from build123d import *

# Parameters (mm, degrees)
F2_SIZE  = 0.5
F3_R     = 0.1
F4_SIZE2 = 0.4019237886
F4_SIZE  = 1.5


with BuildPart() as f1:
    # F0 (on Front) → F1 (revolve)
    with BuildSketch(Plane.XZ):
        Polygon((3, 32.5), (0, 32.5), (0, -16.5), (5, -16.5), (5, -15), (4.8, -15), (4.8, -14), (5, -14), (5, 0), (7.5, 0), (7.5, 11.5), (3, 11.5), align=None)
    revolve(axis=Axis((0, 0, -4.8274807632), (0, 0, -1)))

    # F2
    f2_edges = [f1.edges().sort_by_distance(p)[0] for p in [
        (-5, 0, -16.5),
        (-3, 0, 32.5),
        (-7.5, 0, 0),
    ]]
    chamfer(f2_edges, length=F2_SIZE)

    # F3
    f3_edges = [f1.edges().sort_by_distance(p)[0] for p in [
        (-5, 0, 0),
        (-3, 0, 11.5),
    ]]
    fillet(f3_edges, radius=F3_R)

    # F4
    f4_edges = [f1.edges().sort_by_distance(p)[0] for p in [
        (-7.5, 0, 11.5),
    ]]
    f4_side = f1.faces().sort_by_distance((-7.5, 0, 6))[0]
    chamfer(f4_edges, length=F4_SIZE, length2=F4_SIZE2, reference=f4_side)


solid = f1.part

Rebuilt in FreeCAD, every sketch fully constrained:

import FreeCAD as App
import Part
import Sketcher
Q = App.Units.Quantity


def edges_at(feature, points):
    """Names of the edges that pass closest to the given points."""
    edges = feature.Shape.Edges
    near = lambda p: min(range(len(edges)), key=lambda i: edges[i].distToShape(Part.Vertex(*p))[0])
    return sorted({f"Edge{near(p) + 1}" for p in points})

doc = App.newDocument("Part")
body = doc.addObject("PartDesign::Body", "Body")

# Sketch on XZ plane
sketch1 = body.newObject("Sketcher::SketchObject", "Sketch")
sketch1.AttachmentSupport = (doc.getObject("XZ_Plane"), [""])
sketch1.MapMode = "FlatFace"
sketch1.addGeometry(Part.LineSegment(App.Vector(3, 32.5, 0), App.Vector(0, 32.5, 0)), False)
sketch1.addGeometry(Part.LineSegment(App.Vector(0, 32.5, 0), App.Vector(0, -16.5, 0)), False)
sketch1.addGeometry(Part.LineSegment(App.Vector(0, -16.5, 0), App.Vector(5, -16.5, 0)), False)
sketch1.addGeometry(Part.LineSegment(App.Vector(5, -16.5, 0), App.Vector(5, -15, 0)), False)
sketch1.addGeometry(Part.LineSegment(App.Vector(5, -15, 0), App.Vector(4.8, -15, 0)), False)
sketch1.addGeometry(Part.LineSegment(App.Vector(4.8, -15, 0), App.Vector(4.8, -14, 0)), False)
sketch1.addGeometry(Part.LineSegment(App.Vector(4.8, -14, 0), App.Vector(5, -14, 0)), False)
sketch1.addGeometry(Part.LineSegment(App.Vector(5, -14, 0), App.Vector(5, 0, 0)), False)
sketch1.addGeometry(Part.LineSegment(App.Vector(5, 0, 0), App.Vector(7.5, 0, 0)), False)
sketch1.addGeometry(Part.LineSegment(App.Vector(7.5, 0, 0), App.Vector(7.5, 11.5, 0)), False)
sketch1.addGeometry(Part.LineSegment(App.Vector(7.5, 11.5, 0), App.Vector(3, 11.5, 0)), False)
sketch1.addGeometry(Part.LineSegment(App.Vector(3, 11.5, 0), App.Vector(3, 32.5, 0)), False)
sketch1.addConstraint(Sketcher.Constraint("Coincident", 0, 2, 1, 1))
sketch1.addConstraint(Sketcher.Constraint("Coincident", 1, 2, 2, 1))
sketch1.addConstraint(Sketcher.Constraint("Coincident", 2, 2, 3, 1))
sketch1.addConstraint(Sketcher.Constraint("Coincident", 3, 2, 4, 1))
sketch1.addConstraint(Sketcher.Constraint("Coincident", 4, 2, 5, 1))
sketch1.addConstraint(Sketcher.Constraint("Coincident", 5, 2, 6, 1))
sketch1.addConstraint(Sketcher.Constraint("Coincident", 6, 2, 7, 1))
sketch1.addConstraint(Sketcher.Constraint("Coincident", 7, 2, 8, 1))
sketch1.addConstraint(Sketcher.Constraint("Coincident", 8, 2, 9, 1))
sketch1.addConstraint(Sketcher.Constraint("Coincident", 9, 2, 10, 1))
sketch1.addConstraint(Sketcher.Constraint("Coincident", 10, 2, 11, 1))
sketch1.addConstraint(Sketcher.Constraint("Coincident", 11, 2, 0, 1))
sketch1.addConstraint(Sketcher.Constraint("Horizontal", 0))
sketch1.addConstraint(Sketcher.Constraint("Vertical", 1))
sketch1.addConstraint(Sketcher.Constraint("Horizontal", 2))
sketch1.addConstraint(Sketcher.Constraint("Vertical", 3))
sketch1.addConstraint(Sketcher.Constraint("Horizontal", 4))
sketch1.addConstraint(Sketcher.Constraint("Vertical", 5))
sketch1.addConstraint(Sketcher.Constraint("Horizontal", 6))
sketch1.addConstraint(Sketcher.Constraint("Vertical", 7))
sketch1.addConstraint(Sketcher.Constraint("Horizontal", 8))
sketch1.addConstraint(Sketcher.Constraint("Vertical", 9))
sketch1.addConstraint(Sketcher.Constraint("Horizontal", 10))
sketch1.addConstraint(Sketcher.Constraint("Vertical", 11))
sketch1.addConstraint(Sketcher.Constraint("PointOnObject", 0, 2, -2))
sketch1.addConstraint(Sketcher.Constraint("PointOnObject", 7, 2, -1))
sketch1.addConstraint(Sketcher.Constraint("Vertical", 3, 2, 6, 2))
sketch1.addConstraint(Sketcher.Constraint("DistanceX", 0, 2, 0, 1, Q("3 mm")))
sketch1.addConstraint(Sketcher.Constraint("DistanceX", 2, 1, 2, 2, Q("5 mm")))
sketch1.addConstraint(Sketcher.Constraint("DistanceY", 1, 2, 1, 1, Q("49 mm")))
sketch1.addConstraint(Sketcher.Constraint("DistanceY", 5, 1, 5, 2, Q("1 mm")))
sketch1.addConstraint(Sketcher.Constraint("DistanceY", 7, 1, 7, 2, Q("14 mm")))
sketch1.addConstraint(Sketcher.Constraint("DistanceY", 11, 1, 11, 2, Q("21 mm")))
sketch1.addConstraint(Sketcher.Constraint("DistanceX", 4, 2, 4, 1, Q("0.2 mm")))
sketch1.addConstraint(Sketcher.Constraint("DistanceX", 8, 1, 8, 2, Q("2.5 mm")))
sketch1.addConstraint(Sketcher.Constraint("DistanceY", 3, 1, 3, 2, Q("1.5 mm")))
revolution = body.newObject("PartDesign::Revolution", "Revolution")
revolution.Profile = sketch1
revolution.ReferenceAxis = (sketch1, ["V_Axis"])
revolution.Angle = 360
doc.recompute()

chamfer = body.newObject("PartDesign::Chamfer", "Chamfer")
chamfer.Base = (revolution, edges_at(revolution, [(-5, 0, -16.5), (-3, 0, 32.5), (-7.5, 0, 0)]))
chamfer.Size = 0.5
doc.recompute()

fillet = body.newObject("PartDesign::Fillet", "Fillet")
fillet.Base = (chamfer, edges_at(chamfer, [(-5, 0, 0), (-3, 0, 11.5)]))
fillet.Radius = 0.1
doc.recompute()

chamfer2 = body.newObject("PartDesign::Chamfer", "Chamfer001")
chamfer2.Base = (fillet, edges_at(fillet, [(-7.5, 0, 11.5)]))
chamfer2.ChamferType = "Two distances"
chamfer2.Size = 1.5
chamfer2.Size2 = 0.401924
chamfer2.FlipDirection = True

doc.recompute()
